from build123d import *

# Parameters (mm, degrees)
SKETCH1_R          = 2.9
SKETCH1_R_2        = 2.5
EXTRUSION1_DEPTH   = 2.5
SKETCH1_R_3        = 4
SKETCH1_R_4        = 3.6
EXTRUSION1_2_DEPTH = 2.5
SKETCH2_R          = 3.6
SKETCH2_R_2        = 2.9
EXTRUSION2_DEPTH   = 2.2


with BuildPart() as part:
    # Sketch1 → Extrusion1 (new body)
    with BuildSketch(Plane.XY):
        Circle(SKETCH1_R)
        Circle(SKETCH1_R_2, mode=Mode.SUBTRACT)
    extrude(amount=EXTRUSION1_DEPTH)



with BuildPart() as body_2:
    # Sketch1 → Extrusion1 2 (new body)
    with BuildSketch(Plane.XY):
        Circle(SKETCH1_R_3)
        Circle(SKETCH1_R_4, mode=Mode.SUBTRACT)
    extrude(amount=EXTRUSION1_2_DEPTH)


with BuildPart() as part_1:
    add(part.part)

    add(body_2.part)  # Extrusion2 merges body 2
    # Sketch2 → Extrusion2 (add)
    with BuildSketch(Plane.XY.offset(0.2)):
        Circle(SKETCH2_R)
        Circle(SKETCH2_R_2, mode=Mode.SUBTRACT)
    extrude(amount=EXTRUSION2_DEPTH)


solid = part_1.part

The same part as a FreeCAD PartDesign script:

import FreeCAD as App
import Part
import Sketcher
from FreeCAD import Vector

doc = App.newDocument("Part")
body = doc.addObject("PartDesign::Body", "Body")

sketch1 = body.newObject("Sketcher::SketchObject", "Sketch")
sketch1.AttachmentSupport = (doc.getObject("XY_Plane"), [""])
sketch1.MapMode = "FlatFace"
sketch1.addGeometry([
    Part.Circle(Vector(0, 0, 0), Vector(0, 0, 1), 2.9),
    Part.Circle(Vector(0, 0, 0), Vector(0, 0, 1), 2.5),
], False)
sketch1.addConstraint([
    Sketcher.Constraint("Coincident", 0, 3, -1, 1),
    Sketcher.Constraint("Coincident", 1, 3, -1, 1),
    Sketcher.Constraint("Diameter", 1, 5.0),
    Sketcher.Constraint("Diameter", 0, 5.8),
])
pad1 = body.newObject("PartDesign::Pad", "Pad")
pad1.Profile = sketch1
pad1.Length = 2.5
body2 = doc.addObject("PartDesign::Body", "Body001")

sketch2 = body2.newObject("Sketcher::SketchObject", "Sketch001")
sketch2.AttachmentSupport = (doc.getObject("XY_Plane001"), [""])
sketch2.MapMode = "FlatFace"
sketch2.addGeometry([
    Part.Circle(Vector(0, 0, 0), Vector(0, 0, 1), 4),
    Part.Circle(Vector(0, 0, 0), Vector(0, 0, 1), 3.6),
], False)
sketch2.addConstraint([
    Sketcher.Constraint("Coincident", 0, 3, -1, 1),
    Sketcher.Constraint("Coincident", 1, 3, -1, 1),
    Sketcher.Constraint("Diameter", 0, 8.0),
    Sketcher.Constraint("Diameter", 1, 7.2),
])
pad2 = body2.newObject("PartDesign::Pad", "Pad001")
pad2.Profile = sketch2
pad2.Length = 2.5
body.AllowCompound = True
doc.recompute()

boolean = body.newObject("PartDesign::Boolean", "Boolean")
boolean.Type = "Fuse"
boolean.addObjects([body2])

sketch3 = body.newObject("Sketcher::SketchObject", "Sketch002")
sketch3.AttachmentSupport = (doc.getObject("XY_Plane"), [""])
sketch3.MapMode = "FlatFace"
sketch3.AttachmentOffset = App.Placement(Vector(0, 0, 0.2), App.Rotation())
sketch3.addGeometry([
    Part.Circle(Vector(0, 0, 0), Vector(0, 0, 1), 3.6),
    Part.Circle(Vector(0, 0, 0), Vector(0, 0, 1), 2.9),
], False)
sketch3.addConstraint([
    Sketcher.Constraint("Coincident", 0, 3, -1, 1),
    Sketcher.Constraint("Coincident", 1, 3, -1, 1),
    Sketcher.Constraint("Diameter", 0, 7.2),
    Sketcher.Constraint("Diameter", 1, 5.8),
])
pad3 = body.newObject("PartDesign::Pad", "Pad002")
pad3.Profile = sketch3
pad3.Length = 2.2

doc.recompute()
